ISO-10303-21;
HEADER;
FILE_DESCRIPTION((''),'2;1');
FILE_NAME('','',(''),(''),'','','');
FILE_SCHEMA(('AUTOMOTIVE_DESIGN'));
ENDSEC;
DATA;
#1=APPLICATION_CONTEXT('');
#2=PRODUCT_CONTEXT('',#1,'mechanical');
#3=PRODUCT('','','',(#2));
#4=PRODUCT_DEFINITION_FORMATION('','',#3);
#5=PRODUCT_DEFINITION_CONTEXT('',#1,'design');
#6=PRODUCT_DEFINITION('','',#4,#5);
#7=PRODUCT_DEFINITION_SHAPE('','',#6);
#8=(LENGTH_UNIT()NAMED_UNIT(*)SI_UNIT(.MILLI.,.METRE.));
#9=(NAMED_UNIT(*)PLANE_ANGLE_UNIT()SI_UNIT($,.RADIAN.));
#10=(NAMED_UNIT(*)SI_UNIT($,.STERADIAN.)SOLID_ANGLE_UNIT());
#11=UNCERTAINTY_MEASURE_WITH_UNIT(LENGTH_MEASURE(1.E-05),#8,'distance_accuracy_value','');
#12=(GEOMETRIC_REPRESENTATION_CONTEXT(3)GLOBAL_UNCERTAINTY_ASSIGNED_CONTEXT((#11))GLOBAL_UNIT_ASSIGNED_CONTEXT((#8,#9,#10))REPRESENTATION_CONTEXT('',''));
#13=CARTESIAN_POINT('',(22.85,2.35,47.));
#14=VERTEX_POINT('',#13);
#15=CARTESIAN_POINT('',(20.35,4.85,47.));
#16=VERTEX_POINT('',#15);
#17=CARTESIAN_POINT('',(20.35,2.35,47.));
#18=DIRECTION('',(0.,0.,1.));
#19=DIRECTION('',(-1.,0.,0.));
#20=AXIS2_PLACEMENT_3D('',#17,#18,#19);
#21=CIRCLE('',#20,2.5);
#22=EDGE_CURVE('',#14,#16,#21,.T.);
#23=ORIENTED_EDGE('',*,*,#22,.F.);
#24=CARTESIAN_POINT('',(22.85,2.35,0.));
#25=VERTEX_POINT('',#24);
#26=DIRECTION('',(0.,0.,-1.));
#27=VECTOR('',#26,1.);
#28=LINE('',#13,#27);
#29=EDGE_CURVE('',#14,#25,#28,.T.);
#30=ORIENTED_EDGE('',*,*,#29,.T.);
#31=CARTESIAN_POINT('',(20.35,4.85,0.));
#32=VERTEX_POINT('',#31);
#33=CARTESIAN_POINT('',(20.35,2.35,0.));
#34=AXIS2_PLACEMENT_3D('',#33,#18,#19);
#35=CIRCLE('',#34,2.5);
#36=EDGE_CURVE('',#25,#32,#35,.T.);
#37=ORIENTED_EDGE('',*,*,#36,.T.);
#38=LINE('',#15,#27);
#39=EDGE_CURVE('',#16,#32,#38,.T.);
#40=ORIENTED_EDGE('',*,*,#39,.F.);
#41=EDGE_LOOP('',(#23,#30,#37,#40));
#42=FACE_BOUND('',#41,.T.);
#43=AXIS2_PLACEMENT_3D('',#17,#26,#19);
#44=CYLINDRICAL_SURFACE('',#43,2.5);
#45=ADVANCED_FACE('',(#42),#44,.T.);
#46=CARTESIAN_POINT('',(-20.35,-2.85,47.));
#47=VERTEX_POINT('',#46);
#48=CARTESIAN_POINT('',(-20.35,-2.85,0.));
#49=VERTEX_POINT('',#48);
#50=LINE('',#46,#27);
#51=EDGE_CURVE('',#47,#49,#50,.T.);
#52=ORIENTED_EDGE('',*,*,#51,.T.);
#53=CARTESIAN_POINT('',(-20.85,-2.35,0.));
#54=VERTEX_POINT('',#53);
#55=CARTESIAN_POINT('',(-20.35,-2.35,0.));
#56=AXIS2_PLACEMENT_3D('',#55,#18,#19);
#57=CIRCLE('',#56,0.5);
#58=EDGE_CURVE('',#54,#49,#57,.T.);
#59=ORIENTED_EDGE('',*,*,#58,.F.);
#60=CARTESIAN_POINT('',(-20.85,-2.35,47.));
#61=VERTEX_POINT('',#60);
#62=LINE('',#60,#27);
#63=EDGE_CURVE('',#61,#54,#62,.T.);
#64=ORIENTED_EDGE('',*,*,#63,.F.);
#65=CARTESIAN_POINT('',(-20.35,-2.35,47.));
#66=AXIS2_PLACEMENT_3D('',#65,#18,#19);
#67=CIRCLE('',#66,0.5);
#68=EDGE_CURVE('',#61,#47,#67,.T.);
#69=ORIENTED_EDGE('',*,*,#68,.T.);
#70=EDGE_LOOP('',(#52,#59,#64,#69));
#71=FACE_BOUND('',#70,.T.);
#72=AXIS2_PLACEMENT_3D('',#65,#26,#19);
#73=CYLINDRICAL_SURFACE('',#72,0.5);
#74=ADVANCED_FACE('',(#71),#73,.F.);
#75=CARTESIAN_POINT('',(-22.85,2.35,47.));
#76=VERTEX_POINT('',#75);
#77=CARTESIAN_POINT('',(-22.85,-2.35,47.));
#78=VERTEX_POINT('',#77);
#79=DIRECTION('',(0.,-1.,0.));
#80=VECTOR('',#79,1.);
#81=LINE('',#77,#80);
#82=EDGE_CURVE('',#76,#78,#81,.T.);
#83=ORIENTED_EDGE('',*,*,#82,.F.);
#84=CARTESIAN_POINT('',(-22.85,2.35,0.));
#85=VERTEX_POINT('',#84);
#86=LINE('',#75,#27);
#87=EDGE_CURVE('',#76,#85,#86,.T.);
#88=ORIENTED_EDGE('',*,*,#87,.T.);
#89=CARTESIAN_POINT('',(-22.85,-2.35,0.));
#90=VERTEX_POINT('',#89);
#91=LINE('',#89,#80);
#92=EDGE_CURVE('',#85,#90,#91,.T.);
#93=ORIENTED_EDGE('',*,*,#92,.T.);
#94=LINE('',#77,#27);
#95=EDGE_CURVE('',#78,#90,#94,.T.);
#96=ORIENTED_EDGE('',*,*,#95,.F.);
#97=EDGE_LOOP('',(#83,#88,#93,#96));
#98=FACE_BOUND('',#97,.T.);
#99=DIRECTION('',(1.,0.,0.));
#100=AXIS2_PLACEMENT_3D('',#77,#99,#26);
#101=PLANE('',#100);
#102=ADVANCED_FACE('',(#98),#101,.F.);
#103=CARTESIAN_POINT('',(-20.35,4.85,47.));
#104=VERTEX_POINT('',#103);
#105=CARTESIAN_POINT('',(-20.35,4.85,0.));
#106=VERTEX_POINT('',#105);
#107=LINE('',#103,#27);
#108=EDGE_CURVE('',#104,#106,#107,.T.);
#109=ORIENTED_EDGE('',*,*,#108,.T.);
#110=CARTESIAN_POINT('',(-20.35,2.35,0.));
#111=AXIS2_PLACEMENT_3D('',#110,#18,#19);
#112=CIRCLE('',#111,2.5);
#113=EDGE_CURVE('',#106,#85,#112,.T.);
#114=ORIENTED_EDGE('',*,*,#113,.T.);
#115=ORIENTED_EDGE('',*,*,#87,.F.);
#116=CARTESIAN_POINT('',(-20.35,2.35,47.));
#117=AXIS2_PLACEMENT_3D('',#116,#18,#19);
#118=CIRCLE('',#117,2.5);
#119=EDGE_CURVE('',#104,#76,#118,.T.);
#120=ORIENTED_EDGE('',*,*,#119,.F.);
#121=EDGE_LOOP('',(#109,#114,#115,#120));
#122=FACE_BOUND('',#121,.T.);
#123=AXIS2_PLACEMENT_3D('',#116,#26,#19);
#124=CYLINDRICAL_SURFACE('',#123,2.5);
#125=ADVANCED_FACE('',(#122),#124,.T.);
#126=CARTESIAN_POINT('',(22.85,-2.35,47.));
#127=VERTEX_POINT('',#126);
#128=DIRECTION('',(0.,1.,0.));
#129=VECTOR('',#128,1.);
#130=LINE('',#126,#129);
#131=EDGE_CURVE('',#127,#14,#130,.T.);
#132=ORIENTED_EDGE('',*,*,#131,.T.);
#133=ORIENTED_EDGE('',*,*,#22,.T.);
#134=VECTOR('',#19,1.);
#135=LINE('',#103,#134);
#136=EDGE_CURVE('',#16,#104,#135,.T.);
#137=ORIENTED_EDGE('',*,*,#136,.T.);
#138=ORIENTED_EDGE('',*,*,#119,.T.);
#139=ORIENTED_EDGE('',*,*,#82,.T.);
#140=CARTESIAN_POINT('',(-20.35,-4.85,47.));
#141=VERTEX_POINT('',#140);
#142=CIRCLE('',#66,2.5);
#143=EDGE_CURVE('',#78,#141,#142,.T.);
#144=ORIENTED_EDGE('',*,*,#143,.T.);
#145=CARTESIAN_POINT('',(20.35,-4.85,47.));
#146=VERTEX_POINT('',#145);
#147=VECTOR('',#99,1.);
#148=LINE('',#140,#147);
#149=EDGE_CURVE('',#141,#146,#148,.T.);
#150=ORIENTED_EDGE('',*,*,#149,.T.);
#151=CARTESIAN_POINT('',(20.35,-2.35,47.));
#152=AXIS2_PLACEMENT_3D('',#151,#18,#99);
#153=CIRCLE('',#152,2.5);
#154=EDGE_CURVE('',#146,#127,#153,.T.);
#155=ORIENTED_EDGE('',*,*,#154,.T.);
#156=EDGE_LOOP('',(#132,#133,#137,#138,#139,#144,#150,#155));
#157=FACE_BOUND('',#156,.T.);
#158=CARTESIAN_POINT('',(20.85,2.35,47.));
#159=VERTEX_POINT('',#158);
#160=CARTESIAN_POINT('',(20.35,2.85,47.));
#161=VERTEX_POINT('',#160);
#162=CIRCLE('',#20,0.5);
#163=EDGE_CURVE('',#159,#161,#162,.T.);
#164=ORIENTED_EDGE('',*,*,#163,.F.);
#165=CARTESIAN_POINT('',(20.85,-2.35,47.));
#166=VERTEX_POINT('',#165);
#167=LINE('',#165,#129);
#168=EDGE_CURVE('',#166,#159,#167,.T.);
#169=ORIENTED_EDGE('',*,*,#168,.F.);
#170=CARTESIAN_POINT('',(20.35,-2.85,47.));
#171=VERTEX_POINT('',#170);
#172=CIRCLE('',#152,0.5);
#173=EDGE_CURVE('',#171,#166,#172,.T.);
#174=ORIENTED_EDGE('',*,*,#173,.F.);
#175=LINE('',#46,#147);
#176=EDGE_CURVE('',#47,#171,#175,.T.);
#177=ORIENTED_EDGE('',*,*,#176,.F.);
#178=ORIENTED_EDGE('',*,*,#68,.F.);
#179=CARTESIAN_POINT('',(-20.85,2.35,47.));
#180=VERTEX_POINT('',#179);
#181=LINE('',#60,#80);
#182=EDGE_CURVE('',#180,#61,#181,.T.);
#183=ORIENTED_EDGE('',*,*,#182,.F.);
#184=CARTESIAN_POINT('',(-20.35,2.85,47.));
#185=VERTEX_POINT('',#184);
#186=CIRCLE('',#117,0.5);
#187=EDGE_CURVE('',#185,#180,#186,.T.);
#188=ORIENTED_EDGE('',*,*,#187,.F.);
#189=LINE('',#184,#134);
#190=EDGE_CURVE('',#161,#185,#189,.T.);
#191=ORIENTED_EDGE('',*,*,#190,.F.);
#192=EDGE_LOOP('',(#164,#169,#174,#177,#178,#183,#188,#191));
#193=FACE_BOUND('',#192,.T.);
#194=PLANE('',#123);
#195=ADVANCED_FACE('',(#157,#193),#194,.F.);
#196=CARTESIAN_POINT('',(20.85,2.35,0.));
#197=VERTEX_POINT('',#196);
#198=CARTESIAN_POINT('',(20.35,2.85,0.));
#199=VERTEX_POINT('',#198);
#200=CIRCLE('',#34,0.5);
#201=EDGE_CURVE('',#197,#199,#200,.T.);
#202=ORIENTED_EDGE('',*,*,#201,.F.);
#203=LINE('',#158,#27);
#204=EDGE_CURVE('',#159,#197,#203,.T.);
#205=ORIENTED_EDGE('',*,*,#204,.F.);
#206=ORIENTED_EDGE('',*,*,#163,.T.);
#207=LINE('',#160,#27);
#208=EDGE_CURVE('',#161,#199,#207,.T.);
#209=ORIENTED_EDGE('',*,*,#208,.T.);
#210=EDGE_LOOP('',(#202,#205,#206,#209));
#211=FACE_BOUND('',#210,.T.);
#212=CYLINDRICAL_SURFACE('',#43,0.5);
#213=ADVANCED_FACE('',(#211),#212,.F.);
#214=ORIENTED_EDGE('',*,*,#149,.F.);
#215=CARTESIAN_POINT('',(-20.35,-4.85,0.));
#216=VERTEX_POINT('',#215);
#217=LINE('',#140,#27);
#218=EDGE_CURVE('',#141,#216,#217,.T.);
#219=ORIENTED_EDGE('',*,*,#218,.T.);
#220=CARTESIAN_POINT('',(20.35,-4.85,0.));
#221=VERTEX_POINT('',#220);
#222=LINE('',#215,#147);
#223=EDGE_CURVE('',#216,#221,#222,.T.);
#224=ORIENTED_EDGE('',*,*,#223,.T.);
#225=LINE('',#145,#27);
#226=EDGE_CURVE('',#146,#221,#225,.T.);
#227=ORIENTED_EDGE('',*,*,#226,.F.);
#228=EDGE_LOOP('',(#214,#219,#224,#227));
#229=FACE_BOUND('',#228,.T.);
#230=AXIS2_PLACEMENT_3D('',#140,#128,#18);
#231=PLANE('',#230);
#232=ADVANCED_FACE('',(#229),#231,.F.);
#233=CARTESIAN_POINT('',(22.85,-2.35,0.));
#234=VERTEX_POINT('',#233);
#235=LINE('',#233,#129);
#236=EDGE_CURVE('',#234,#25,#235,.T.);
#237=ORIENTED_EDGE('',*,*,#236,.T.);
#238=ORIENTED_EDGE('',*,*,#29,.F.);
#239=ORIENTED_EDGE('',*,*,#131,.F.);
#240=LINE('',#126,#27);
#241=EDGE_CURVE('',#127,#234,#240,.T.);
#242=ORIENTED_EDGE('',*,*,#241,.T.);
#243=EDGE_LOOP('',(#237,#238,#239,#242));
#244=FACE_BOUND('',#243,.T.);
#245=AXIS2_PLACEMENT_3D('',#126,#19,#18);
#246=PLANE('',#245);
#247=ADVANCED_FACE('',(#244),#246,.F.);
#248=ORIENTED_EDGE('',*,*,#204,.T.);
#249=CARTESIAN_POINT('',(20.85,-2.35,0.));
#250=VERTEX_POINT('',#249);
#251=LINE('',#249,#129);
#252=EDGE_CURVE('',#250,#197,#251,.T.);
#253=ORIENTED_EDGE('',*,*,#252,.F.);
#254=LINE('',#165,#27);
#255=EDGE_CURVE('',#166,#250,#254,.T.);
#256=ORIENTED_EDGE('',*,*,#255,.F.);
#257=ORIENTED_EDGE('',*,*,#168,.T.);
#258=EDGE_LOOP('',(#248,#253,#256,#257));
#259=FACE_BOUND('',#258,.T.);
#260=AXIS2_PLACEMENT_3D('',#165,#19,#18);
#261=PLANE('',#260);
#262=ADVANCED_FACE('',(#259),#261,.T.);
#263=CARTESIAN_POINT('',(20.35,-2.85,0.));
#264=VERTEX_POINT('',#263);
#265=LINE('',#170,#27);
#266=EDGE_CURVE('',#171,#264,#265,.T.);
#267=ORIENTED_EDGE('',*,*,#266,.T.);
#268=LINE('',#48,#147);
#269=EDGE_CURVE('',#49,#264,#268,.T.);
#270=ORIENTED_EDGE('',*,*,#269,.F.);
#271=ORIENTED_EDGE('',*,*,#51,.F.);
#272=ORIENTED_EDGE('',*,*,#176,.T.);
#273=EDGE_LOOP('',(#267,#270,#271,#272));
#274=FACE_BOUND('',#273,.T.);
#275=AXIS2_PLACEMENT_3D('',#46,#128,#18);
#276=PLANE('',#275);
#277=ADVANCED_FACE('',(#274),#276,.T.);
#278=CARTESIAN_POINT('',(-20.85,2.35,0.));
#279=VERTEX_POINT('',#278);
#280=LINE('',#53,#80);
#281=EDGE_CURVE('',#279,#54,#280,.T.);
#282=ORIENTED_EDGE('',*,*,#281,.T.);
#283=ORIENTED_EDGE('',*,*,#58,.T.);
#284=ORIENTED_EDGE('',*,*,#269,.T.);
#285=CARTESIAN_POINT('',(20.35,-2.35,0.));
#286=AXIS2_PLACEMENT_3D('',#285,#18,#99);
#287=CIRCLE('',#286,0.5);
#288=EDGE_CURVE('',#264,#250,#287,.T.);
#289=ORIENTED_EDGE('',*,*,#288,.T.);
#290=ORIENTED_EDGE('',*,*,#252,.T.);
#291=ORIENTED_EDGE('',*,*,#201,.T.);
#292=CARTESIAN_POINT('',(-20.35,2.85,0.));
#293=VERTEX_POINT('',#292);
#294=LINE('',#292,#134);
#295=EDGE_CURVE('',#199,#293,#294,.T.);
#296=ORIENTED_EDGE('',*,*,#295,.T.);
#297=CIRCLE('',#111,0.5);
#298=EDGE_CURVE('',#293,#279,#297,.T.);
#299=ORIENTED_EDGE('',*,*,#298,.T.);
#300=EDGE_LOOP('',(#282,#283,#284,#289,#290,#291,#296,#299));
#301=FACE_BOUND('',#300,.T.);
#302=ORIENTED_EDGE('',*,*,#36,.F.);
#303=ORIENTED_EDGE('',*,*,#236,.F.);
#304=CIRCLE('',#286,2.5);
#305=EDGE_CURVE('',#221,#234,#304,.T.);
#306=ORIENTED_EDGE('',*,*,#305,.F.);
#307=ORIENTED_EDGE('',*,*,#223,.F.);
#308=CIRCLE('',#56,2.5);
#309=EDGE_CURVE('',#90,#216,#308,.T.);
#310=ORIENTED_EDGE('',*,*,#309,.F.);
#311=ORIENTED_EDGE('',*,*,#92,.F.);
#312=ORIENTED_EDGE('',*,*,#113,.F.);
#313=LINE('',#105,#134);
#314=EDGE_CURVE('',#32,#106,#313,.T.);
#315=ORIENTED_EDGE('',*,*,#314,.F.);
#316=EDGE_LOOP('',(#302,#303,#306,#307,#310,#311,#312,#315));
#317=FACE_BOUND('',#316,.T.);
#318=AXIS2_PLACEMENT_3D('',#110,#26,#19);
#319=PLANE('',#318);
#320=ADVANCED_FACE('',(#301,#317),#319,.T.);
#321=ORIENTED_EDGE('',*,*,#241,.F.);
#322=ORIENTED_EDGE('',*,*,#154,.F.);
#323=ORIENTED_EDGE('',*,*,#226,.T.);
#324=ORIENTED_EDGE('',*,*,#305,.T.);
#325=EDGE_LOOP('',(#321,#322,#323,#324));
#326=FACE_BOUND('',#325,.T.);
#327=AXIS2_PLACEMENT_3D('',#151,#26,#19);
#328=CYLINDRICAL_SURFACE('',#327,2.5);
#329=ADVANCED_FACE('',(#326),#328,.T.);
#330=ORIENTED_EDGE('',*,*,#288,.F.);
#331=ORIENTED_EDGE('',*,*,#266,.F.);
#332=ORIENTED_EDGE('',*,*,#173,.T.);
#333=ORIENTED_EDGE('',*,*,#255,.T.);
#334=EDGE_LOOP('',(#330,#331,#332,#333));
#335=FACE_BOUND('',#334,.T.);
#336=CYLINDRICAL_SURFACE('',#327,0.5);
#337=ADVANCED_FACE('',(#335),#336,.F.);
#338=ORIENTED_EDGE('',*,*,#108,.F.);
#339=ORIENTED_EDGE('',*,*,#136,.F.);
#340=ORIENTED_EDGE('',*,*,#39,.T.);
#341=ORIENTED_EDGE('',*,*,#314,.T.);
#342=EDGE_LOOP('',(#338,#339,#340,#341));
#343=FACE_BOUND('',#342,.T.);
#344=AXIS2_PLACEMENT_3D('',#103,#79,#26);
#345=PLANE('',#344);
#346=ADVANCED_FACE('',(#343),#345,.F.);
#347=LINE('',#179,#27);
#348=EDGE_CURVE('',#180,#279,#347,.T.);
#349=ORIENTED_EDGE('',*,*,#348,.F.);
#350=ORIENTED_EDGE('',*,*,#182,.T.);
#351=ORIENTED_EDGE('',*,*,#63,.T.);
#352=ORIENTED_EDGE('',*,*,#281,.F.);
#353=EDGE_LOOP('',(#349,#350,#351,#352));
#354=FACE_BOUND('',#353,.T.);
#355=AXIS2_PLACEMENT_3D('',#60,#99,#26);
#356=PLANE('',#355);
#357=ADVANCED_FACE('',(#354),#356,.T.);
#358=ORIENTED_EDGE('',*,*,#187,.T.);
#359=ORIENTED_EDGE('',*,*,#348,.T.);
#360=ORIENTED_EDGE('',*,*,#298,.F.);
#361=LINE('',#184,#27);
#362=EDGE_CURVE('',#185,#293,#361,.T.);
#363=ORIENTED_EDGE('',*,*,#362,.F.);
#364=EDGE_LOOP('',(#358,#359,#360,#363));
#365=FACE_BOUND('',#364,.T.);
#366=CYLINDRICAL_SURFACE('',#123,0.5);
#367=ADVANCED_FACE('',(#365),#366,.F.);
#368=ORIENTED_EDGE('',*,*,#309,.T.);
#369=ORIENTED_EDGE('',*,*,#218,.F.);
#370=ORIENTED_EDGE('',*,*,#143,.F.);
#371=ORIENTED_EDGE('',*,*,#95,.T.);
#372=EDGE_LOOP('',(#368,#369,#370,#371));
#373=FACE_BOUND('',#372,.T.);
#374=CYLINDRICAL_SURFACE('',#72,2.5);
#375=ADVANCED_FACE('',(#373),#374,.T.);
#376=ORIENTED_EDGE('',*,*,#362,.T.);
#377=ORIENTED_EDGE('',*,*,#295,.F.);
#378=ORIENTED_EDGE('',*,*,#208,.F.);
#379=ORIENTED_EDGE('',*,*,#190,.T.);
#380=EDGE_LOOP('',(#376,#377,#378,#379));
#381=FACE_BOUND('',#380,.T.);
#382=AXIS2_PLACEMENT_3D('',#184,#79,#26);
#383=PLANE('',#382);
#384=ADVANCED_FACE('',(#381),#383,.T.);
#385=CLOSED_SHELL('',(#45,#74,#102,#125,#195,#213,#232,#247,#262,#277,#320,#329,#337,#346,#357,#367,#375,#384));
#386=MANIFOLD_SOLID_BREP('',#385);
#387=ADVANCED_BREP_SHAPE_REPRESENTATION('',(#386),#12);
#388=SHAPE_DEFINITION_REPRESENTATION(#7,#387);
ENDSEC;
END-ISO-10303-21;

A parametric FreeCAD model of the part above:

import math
import FreeCAD as App
import Part
import Sketcher

V = App.Vector

doc = App.newDocument("Part")
body = doc.addObject("PartDesign::Body", "Body")

sketch1 = body.newObject("Sketcher::SketchObject", "Sketch")
sketch1.AttachmentSupport = (doc.getObject("XY_Plane"), [""])
sketch1.MapMode = "FlatFace"
sketch1.addGeometry([
    Part.LineSegment(V(20.35, 4.85, 0), V(-20.35, 4.85, 0)),
    Part.ArcOfCircle(Part.Circle(V(-20.35, 2.35, 0), V(0, 0, 1), 2.5), math.radians(90), math.radians(180)),
    Part.LineSegment(V(-22.85, 2.35, 0), V(-22.85, -2.35, 0)),
    Part.ArcOfCircle(Part.Circle(V(-20.35, -2.35, 0), V(0, 0, 1), 2.5), math.radians(180), math.radians(270)),
    Part.LineSegment(V(-20.35, -4.85, 0), V(20.35, -4.85, 0)),
    Part.ArcOfCircle(Part.Circle(V(20.35, -2.35, 0), V(0, 0, 1), 2.5), math.radians(-90), math.radians(0)),
    Part.LineSegment(V(22.85, -2.35, 0), V(22.85, 2.35, 0)),
    Part.ArcOfCircle(Part.Circle(V(20.35, 2.35, 0), V(0, 0, 1), 2.5), math.radians(0), math.radians(90)),
    Part.ArcOfCircle(Part.Circle(V(-20.35, -2.35, 0), V(0, 0, 1), 0.5), math.radians(180), math.radians(270)),
    Part.LineSegment(V(-20.85, -2.35, 0), V(-20.85, 2.35, 0)),
    Part.ArcOfCircle(Part.Circle(V(-20.35, 2.35, 0), V(0, 0, 1), 0.5), math.radians(90), math.radians(180)),
    Part.LineSegment(V(-20.35, 2.85, 0), V(20.35, 2.85, 0)),
    Part.ArcOfCircle(Part.Circle(V(20.35, 2.35, 0), V(0, 0, 1), 0.5), math.radians(0), math.radians(90)),
    Part.LineSegment(V(20.85, 2.35, 0), V(20.85, -2.35, 0)),
    Part.ArcOfCircle(Part.Circle(V(20.35, -2.35, 0), V(0, 0, 1), 0.5), math.radians(-90), math.radians(0)),
    Part.LineSegment(V(20.35, -2.85, 0), V(-20.35, -2.85, 0)),
], False)
sketch1.addConstraint([
    Sketcher.Constraint("Tangent", 0, 2, 1, 1),
    Sketcher.Constraint("Tangent", 1, 2, 2, 1),
    Sketcher.Constraint("Tangent", 2, 2, 3, 1),
    Sketcher.Constraint("Tangent", 3, 2, 4, 1),
    Sketcher.Constraint("Tangent", 4, 2, 5, 1),
    Sketcher.Constraint("Tangent", 5, 2, 6, 1),
    Sketcher.Constraint("Tangent", 6, 2, 7, 1),
    Sketcher.Constraint("Tangent", 7, 2, 0, 1),
    Sketcher.Constraint("Tangent", 8, 1, 9, 1),
    Sketcher.Constraint("Tangent", 9, 2, 10, 2),
    Sketcher.Constraint("Tangent", 10, 1, 11, 1),
    Sketcher.Constraint("Tangent", 11, 2, 12, 2),
    Sketcher.Constraint("Tangent", 12, 1, 13, 1),
    Sketcher.Constraint("Tangent", 13, 2, 14, 2),
    Sketcher.Constraint("Tangent", 14, 1, 15, 1),
    Sketcher.Constraint("Tangent", 15, 2, 8, 2),
    Sketcher.Constraint("Horizontal", 0),
    Sketcher.Constraint("Vertical", 2),
    Sketcher.Constraint("Horizontal", 4),
    Sketcher.Constraint("Vertical", 6),
    Sketcher.Constraint("Vertical", 9),
    Sketcher.Constraint("Horizontal", 11),
    Sketcher.Constraint("Vertical", 13),
    Sketcher.Constraint("Horizontal", 15),
    Sketcher.Constraint("Coincident", 8, 3, 3, 3),
    Sketcher.Constraint("Coincident", 10, 3, 1, 3),
    Sketcher.Constraint("Coincident", 12, 3, 7, 3),
    Sketcher.Constraint("Equal", 1, 3),
    Sketcher.Constraint("Equal", 3, 5),
    Sketcher.Constraint("Equal", 5, 7),
    Sketcher.Constraint("Equal", 12, 14),
    Sketcher.Constraint("Symmetric", 1, 3, 5, 3, -1, 1),
    Sketcher.Constraint("Radius", 1, 2.5),
    Sketcher.Constraint("Radius", 8, 0.5),
    Sketcher.Constraint("DistanceX", 0, 2, 0, 1, 40.7),
    Sketcher.Constraint("DistanceY", 2, 2, 2, 1, 4.7),
])
pad1 = body.newObject("PartDesign::Pad", "Pad")
pad1.Profile = sketch1
pad1.Length = 47

doc.recompute()
